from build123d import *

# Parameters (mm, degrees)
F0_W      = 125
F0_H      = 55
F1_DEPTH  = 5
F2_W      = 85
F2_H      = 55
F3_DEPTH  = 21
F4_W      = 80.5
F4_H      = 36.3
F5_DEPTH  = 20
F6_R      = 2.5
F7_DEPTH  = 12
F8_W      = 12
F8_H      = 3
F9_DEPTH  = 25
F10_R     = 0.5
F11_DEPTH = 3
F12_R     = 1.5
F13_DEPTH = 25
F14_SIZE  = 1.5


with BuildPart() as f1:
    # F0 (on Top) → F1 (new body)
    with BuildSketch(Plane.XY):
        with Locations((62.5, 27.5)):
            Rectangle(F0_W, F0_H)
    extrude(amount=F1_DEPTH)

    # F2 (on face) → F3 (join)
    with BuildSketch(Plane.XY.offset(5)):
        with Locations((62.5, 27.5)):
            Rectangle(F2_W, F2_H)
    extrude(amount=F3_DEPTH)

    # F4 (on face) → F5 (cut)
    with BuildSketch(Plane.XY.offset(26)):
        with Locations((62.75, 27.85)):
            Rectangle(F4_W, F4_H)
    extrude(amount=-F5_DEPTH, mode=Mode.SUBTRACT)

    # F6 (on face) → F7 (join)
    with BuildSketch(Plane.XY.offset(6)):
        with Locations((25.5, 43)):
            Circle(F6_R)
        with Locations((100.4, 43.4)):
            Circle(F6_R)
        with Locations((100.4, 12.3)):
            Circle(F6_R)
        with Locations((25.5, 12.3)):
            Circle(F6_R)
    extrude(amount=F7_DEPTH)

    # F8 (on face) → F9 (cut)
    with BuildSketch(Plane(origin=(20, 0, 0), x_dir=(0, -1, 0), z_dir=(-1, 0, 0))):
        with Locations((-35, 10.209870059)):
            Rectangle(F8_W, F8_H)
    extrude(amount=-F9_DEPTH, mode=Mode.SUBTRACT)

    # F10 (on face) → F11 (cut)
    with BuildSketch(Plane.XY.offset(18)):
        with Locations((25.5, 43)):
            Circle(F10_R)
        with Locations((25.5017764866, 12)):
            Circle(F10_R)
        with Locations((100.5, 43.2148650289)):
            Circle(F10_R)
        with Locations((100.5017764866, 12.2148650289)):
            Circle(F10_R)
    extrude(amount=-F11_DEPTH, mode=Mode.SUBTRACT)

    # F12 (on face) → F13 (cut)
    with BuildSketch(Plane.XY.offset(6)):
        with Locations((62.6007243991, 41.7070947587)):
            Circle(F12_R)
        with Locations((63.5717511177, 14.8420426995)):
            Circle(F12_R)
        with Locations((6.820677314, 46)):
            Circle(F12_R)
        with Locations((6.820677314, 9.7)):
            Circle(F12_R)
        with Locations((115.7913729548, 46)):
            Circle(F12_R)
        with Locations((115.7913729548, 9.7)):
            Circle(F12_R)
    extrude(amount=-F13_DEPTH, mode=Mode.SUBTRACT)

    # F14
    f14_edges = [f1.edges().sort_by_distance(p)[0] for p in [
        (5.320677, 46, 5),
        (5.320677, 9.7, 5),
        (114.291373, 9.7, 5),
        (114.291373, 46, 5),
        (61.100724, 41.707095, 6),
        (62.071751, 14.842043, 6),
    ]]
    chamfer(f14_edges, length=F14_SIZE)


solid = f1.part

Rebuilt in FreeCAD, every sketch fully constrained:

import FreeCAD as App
import Part
import Sketcher


def edges_at(feature, points):
    """Names of the edges that pass closest to the given points."""
    edges = feature.Shape.Edges
    near = lambda p: min(range(len(edges)), key=lambda i: edges[i].distToShape(Part.Vertex(*p))[0])
    return sorted({f"Edge{near(p) + 1}" for p in points})

doc = App.newDocument("Part")
body = doc.addObject("PartDesign::Body", "Body")

# Sketch on XY plane
sketch1 = body.newObject("Sketcher::SketchObject", "Sketch")
sketch1.AttachmentSupport = (doc.getObject("XY_Plane"), [""])
sketch1.MapMode = "FlatFace"
sketch1.addGeometry(Part.LineSegment(App.Vector(0, 55, 0), App.Vector(0, 0, 0)), False)
sketch1.addGeometry(Part.LineSegment(App.Vector(0, 0, 0), App.Vector(125, 0, 0)), False)
sketch1.addGeometry(Part.LineSegment(App.Vector(125, 0, 0), App.Vector(125, 55, 0)), False)
sketch1.addGeometry(Part.LineSegment(App.Vector(125, 55, 0), App.Vector(0, 55, 0)), False)
sketch1.addConstraint(Sketcher.Constraint("Coincident", 0, 2, 1, 1))
sketch1.addConstraint(Sketcher.Constraint("Coincident", 1, 2, 2, 1))
sketch1.addConstraint(Sketcher.Constraint("Coincident", 2, 2, 3, 1))
sketch1.addConstraint(Sketcher.Constraint("Coincident", 3, 2, 0, 1))
sketch1.addConstraint(Sketcher.Constraint("Vertical", 0))
sketch1.addConstraint(Sketcher.Constraint("Horizontal", 1))
sketch1.addConstraint(Sketcher.Constraint("Vertical", 2))
sketch1.addConstraint(Sketcher.Constraint("Horizontal", 3))
sketch1.addConstraint(Sketcher.Constraint("Coincident", 0, 2, -1, 1))
sketch1.addConstraint(Sketcher.Constraint("DistanceX", 1, 1, 1, 2, 125.0))
sketch1.addConstraint(Sketcher.Constraint("DistanceY", 0, 2, 0, 1, 55.0))
pad1 = body.newObject("PartDesign::Pad", "Pad")
pad1.Profile = sketch1
pad1.Length = 5

# Sketch on XY plane
sketch2 = body.newObject("Sketcher::SketchObject", "Sketch001")
sketch2.AttachmentSupport = (doc.getObject("XY_Plane"), [""])
sketch2.MapMode = "FlatFace"
sketch2.AttachmentOffset = App.Placement(App.Vector(0, 0, 5), App.Rotation())
sketch2.addGeometry(Part.LineSegment(App.Vector(20, 55, 0), App.Vector(20, 0, 0)), False)
sketch2.addGeometry(Part.LineSegment(App.Vector(20, 0, 0), App.Vector(105, 0, 0)), False)
sketch2.addGeometry(Part.LineSegment(App.Vector(105, 0, 0), App.Vector(105, 55, 0)), False)
sketch2.addGeometry(Part.LineSegment(App.Vector(105, 55, 0), App.Vector(20, 55, 0)), False)
sketch2.addConstraint(Sketcher.Constraint("Coincident", 0, 2, 1, 1))
sketch2.addConstraint(Sketcher.Constraint("Coincident", 1, 2, 2, 1))
sketch2.addConstraint(Sketcher.Constraint("Coincident", 2, 2, 3, 1))
sketch2.addConstraint(Sketcher.Constraint("Coincident", 3, 2, 0, 1))
sketch2.addConstraint(Sketcher.Constraint("Vertical", 0))
sketch2.addConstraint(Sketcher.Constraint("Horizontal", 1))
sketch2.addConstraint(Sketcher.Constraint("Vertical", 2))
sketch2.addConstraint(Sketcher.Constraint("Horizontal", 3))
sketch2.addConstraint(Sketcher.Constraint("PointOnObject", 0, 2, -1))
sketch2.addConstraint(Sketcher.Constraint("DistanceX", 1, 1, 1, 2, 85.0))
sketch2.addConstraint(Sketcher.Constraint("DistanceY", 0, 2, 0, 1, 55.0))
sketch2.addConstraint(Sketcher.Constraint("DistanceX", -1, 1, 0, 2, 20.0))
pad2 = body.newObject("PartDesign::Pad", "Pad001")
pad2.Profile = sketch2
pad2.Length = 21

# Sketch on XY plane
sketch3 = body.newObject("Sketcher::SketchObject", "Sketch002")
sketch3.AttachmentSupport = (doc.getObject("XY_Plane"), [""])
sketch3.MapMode = "FlatFace"
sketch3.AttachmentOffset = App.Placement(App.Vector(0, 0, 26), App.Rotation())
sketch3.addGeometry(Part.LineSegment(App.Vector(22, 46, 0), App.Vector(22, 10, 0)), False)
sketch3.addGeometry(Part.LineSegment(App.Vector(22, 10, 0), App.Vector(103, 10, 0)), False)
sketch3.addGeometry(Part.LineSegment(App.Vector(103, 10, 0), App.Vector(103, 46, 0)), False)
sketch3.addGeometry(Part.LineSegment(App.Vector(103, 46, 0), App.Vector(22, 46, 0)), False)
sketch3.addConstraint(Sketcher.Constraint("Coincident", 0, 2, 1, 1))
sketch3.addConstraint(Sketcher.Constraint("Coincident", 1, 2, 2, 1))
sketch3.addConstraint(Sketcher.Constraint("Coincident", 2, 2, 3, 1))
sketch3.addConstraint(Sketcher.Constraint("Coincident", 3, 2, 0, 1))
sketch3.addConstraint(Sketcher.Constraint("Vertical", 0))
sketch3.addConstraint(Sketcher.Constraint("Horizontal", 1))
sketch3.addConstraint(Sketcher.Constraint("Vertical", 2))
sketch3.addConstraint(Sketcher.Constraint("Horizontal", 3))
sketch3.addConstraint(Sketcher.Constraint("DistanceX", 1, 1, 1, 2, 80.5))
sketch3.addConstraint(Sketcher.Constraint("DistanceY", 0, 2, 0, 1, 36.3))
sketch3.addConstraint(Sketcher.Constraint("DistanceX", -1, 1, 1, 2, 103.0))
sketch3.addConstraint(Sketcher.Constraint("DistanceY", -1, 1, 2, 2, 46.0))
pocket1 = body.newObject("PartDesign::Pocket", "Pocket")
pocket1.Profile = sketch3
pocket1.Length = 20

# Sketch on XY plane
sketch4 = body.newObject("Sketcher::SketchObject", "Sketch003")
sketch4.AttachmentSupport = (doc.getObject("XY_Plane"), [""])
sketch4.MapMode = "FlatFace"
sketch4.AttachmentOffset = App.Placement(App.Vector(0, 0, 6), App.Rotation())
sketch4.addGeometry(Part.Circle(App.Vector(25.5, 43, 0), App.Vector(0, 0, 1), 2.5), False)
sketch4.addGeometry(Part.Circle(App.Vector(100.4, 43.4, 0), App.Vector(0, 0, 1), 2.5), False)
sketch4.addGeometry(Part.Circle(App.Vector(100.4, 12.3, 0), App.Vector(0, 0, 1), 2.5), False)
sketch4.addGeometry(Part.Circle(App.Vector(25.5, 12.3, 0), App.Vector(0, 0, 1), 2.5), False)
sketch4.addConstraint(Sketcher.Constraint("Equal", 0, 1))
sketch4.addConstraint(Sketcher.Constraint("Equal", 1, 2))
sketch4.addConstraint(Sketcher.Constraint("Equal", 2, 3))
sketch4.addConstraint(Sketcher.Constraint("Horizontal", 2, 3, 3, 3))
sketch4.addConstraint(Sketcher.Constraint("Vertical", 1, 3, 2, 3))
sketch4.addConstraint(Sketcher.Constraint("Vertical", 0, 3, 3, 3))
sketch4.addConstraint(Sketcher.Constraint("Diameter", 0, 5.0))
sketch4.addConstraint(Sketcher.Constraint("DistanceY", -1, 1, 0, 3, 43.0))
sketch4.addConstraint(Sketcher.Constraint("DistanceX", -1, 1, 0, 3, 25.5))
sketch4.addConstraint(Sketcher.Constraint("DistanceX", -1, 1, 1, 3, 100.4))
sketch4.addConstraint(Sketcher.Constraint("DistanceY", -1, 1, 1, 3, 43.4))
sketch4.addConstraint(Sketcher.Constraint("DistanceY", -1, 1, 2, 3, 12.3))
pad3 = body.newObject("PartDesign::Pad", "Pad002")
pad3.Profile = sketch4
pad3.Length = 12

# Sketch on YZ plane
sketch5 = body.newObject("Sketcher::SketchObject", "Sketch004")
sketch5.AttachmentSupport = (doc.getObject("YZ_Plane"), [""])
sketch5.MapMode = "FlatFace"
sketch5.AttachmentOffset = App.Placement(App.Vector(0, 0, 20), App.Rotation())
sketch5.addGeometry(Part.LineSegment(App.Vector(41, 11.7, 0), App.Vector(41, 8.7, 0)), False)
sketch5.addGeometry(Part.LineSegment(App.Vector(41, 8.7, 0), App.Vector(29, 8.7, 0)), False)
sketch5.addGeometry(Part.LineSegment(App.Vector(29, 8.7, 0), App.Vector(29, 11.7, 0)), False)
sketch5.addGeometry(Part.LineSegment(App.Vector(29, 11.7, 0), App.Vector(41, 11.7, 0)), False)
sketch5.addConstraint(Sketcher.Constraint("Coincident", 0, 2, 1, 1))
sketch5.addConstraint(Sketcher.Constraint("Coincident", 1, 2, 2, 1))
sketch5.addConstraint(Sketcher.Constraint("Coincident", 2, 2, 3, 1))
sketch5.addConstraint(Sketcher.Constraint("Coincident", 3, 2, 0, 1))
sketch5.addConstraint(Sketcher.Constraint("Vertical", 0))
sketch5.addConstraint(Sketcher.Constraint("Horizontal", 1))
sketch5.addConstraint(Sketcher.Constraint("Vertical", 2))
sketch5.addConstraint(Sketcher.Constraint("Horizontal", 3))
sketch5.addConstraint(Sketcher.Constraint("DistanceX", 1, 2, 1, 1, 12.0))
sketch5.addConstraint(Sketcher.Constraint("DistanceY", 0, 2, 0, 1, 3.0))
sketch5.addConstraint(Sketcher.Constraint("DistanceX", -1, 1, 0, 2, 41.0))
sketch5.addConstraint(Sketcher.Constraint("DistanceY", -1, 1, 0, 2, 8.70987))
pocket2 = body.newObject("PartDesign::Pocket", "Pocket001")
pocket2.Profile = sketch5
pocket2.Length = 25
pocket2.Reversed = True

# Sketch on XY plane
sketch6 = body.newObject("Sketcher::SketchObject", "Sketch005")
sketch6.AttachmentSupport = (doc.getObject("XY_Plane"), [""])
sketch6.MapMode = "FlatFace"
sketch6.AttachmentOffset = App.Placement(App.Vector(0, 0, 18), App.Rotation())
sketch6.addGeometry(Part.Circle(App.Vector(25.5, 43, 0), App.Vector(0, 0, 1), 0.5), False)
sketch6.addGeometry(Part.Circle(App.Vector(25.5, 12, 0), App.Vector(0, 0, 1), 0.5), False)
sketch6.addGeometry(Part.Circle(App.Vector(100.5, 43.2, 0), App.Vector(0, 0, 1), 0.5), False)
sketch6.addGeometry(Part.Circle(App.Vector(100.5, 12.2, 0), App.Vector(0, 0, 1), 0.5), False)
sketch6.addConstraint(Sketcher.Constraint("Equal", 0, 1))
sketch6.addConstraint(Sketcher.Constraint("Equal", 1, 2))
sketch6.addConstraint(Sketcher.Constraint("Equal", 2, 3))
sketch6.addConstraint(Sketcher.Constraint("Diameter", 0, 1.0))
sketch6.addConstraint(Sketcher.Constraint("DistanceY", -1, 1, 0, 3, 43.0))
sketch6.addConstraint(Sketcher.Constraint("DistanceY", -1, 1, 1, 3, 12.0))
sketch6.addConstraint(Sketcher.Constraint("DistanceX", 0, 3, 2, 3, 75.0))
sketch6.addConstraint(Sketcher.Constraint("DistanceY", 3, 3, 2, 3, 31.0))
sketch6.addConstraint(Sketcher.Constraint("DistanceX", 1, 3, 3, 3, 75.0))
sketch6.addConstraint(Sketcher.Constraint("DistanceX", -1, 1, 0, 3, 25.5))
sketch6.addConstraint(Sketcher.Constraint("DistanceX", -1, 1, 1, 3, 25.501776))
sketch6.addConstraint(Sketcher.Constraint("DistanceY", -1, 1, 2, 3, 43.214865))
pocket3 = body.newObject("PartDesign::Pocket", "Pocket002")
pocket3.Profile = sketch6
pocket3.Length = 3

# Sketch on XY plane
sketch7 = body.newObject("Sketcher::SketchObject", "Sketch006")
sketch7.AttachmentSupport = (doc.getObject("XY_Plane"), [""])
sketch7.MapMode = "FlatFace"
sketch7.AttachmentOffset = App.Placement(App.Vector(0, 0, 6), App.Rotation())
sketch7.addGeometry(Part.Circle(App.Vector(62.6, 41.7, 0), App.Vector(0, 0, 1), 1.5), False)
sketch7.addGeometry(Part.Circle(App.Vector(63.6, 14.8, 0), App.Vector(0, 0, 1), 1.5), False)
sketch7.addGeometry(Part.Circle(App.Vector(6.8, 46, 0), App.Vector(0, 0, 1), 1.5), False)
sketch7.addGeometry(Part.Circle(App.Vector(6.8, 9.7, 0), App.Vector(0, 0, 1), 1.5), False)
sketch7.addGeometry(Part.Circle(App.Vector(115.8, 46, 0), App.Vector(0, 0, 1), 1.5), False)
sketch7.addGeometry(Part.Circle(App.Vector(115.8, 9.7, 0), App.Vector(0, 0, 1), 1.5), False)
sketch7.addConstraint(Sketcher.Constraint("Equal", 0, 1))
sketch7.addConstraint(Sketcher.Constraint("Equal", 1, 2))
sketch7.addConstraint(Sketcher.Constraint("Equal", 2, 3))
sketch7.addConstraint(Sketcher.Constraint("Equal", 3, 4))
sketch7.addConstraint(Sketcher.Constraint("Equal", 4, 5))
sketch7.addConstraint(Sketcher.Constraint("Horizontal", 2, 3, 4, 3))
sketch7.addConstraint(Sketcher.Constraint("Horizontal", 3, 3, 5, 3))
sketch7.addConstraint(Sketcher.Constraint("Vertical", 2, 3, 3, 3))
sketch7.addConstraint(Sketcher.Constraint("Vertical", 4, 3, 5, 3))
sketch7.addConstraint(Sketcher.Constraint("Diameter", 0, 3.0))
sketch7.addConstraint(Sketcher.Constraint("DistanceY", -1, 1, 2, 3, 46.0))
sketch7.addConstraint(Sketcher.Constraint("DistanceY", -1, 1, 3, 3, 9.7))
sketch7.addConstraint(Sketcher.Constraint("DistanceX", -1, 1, 1, 3, 63.571751))
sketch7.addConstraint(Sketcher.Constraint("DistanceX", 0, 3, 4, 3, 53.190649))
sketch7.addConstraint(Sketcher.Constraint("DistanceX", 1, 3, 4, 3, 52.219622))
sketch7.addConstraint(Sketcher.Constraint("DistanceY", -1, 1, 0, 3, 41.707095))
sketch7.addConstraint(Sketcher.Constraint("DistanceY", -1, 1, 1, 3, 14.842043))
sketch7.addConstraint(Sketcher.Constraint("DistanceX", -1, 1, 2, 3, 6.820677))
pocket4 = body.newObject("PartDesign::Pocket", "Pocket003")
pocket4.Profile = sketch7
pocket4.Length = 25
doc.recompute()

chamfer = body.newObject("PartDesign::Chamfer", "Chamfer")
chamfer.Base = (pocket4, edges_at(pocket4, [
    (5.321, 46, 5),
    (5.321, 9.7, 5),
    (114.291, 9.7, 5),
    (114.291, 46, 5),
    (61.101, 41.707, 6),
    (62.072, 14.842, 6),
]))
chamfer.Size = 1.5

doc.recompute()
